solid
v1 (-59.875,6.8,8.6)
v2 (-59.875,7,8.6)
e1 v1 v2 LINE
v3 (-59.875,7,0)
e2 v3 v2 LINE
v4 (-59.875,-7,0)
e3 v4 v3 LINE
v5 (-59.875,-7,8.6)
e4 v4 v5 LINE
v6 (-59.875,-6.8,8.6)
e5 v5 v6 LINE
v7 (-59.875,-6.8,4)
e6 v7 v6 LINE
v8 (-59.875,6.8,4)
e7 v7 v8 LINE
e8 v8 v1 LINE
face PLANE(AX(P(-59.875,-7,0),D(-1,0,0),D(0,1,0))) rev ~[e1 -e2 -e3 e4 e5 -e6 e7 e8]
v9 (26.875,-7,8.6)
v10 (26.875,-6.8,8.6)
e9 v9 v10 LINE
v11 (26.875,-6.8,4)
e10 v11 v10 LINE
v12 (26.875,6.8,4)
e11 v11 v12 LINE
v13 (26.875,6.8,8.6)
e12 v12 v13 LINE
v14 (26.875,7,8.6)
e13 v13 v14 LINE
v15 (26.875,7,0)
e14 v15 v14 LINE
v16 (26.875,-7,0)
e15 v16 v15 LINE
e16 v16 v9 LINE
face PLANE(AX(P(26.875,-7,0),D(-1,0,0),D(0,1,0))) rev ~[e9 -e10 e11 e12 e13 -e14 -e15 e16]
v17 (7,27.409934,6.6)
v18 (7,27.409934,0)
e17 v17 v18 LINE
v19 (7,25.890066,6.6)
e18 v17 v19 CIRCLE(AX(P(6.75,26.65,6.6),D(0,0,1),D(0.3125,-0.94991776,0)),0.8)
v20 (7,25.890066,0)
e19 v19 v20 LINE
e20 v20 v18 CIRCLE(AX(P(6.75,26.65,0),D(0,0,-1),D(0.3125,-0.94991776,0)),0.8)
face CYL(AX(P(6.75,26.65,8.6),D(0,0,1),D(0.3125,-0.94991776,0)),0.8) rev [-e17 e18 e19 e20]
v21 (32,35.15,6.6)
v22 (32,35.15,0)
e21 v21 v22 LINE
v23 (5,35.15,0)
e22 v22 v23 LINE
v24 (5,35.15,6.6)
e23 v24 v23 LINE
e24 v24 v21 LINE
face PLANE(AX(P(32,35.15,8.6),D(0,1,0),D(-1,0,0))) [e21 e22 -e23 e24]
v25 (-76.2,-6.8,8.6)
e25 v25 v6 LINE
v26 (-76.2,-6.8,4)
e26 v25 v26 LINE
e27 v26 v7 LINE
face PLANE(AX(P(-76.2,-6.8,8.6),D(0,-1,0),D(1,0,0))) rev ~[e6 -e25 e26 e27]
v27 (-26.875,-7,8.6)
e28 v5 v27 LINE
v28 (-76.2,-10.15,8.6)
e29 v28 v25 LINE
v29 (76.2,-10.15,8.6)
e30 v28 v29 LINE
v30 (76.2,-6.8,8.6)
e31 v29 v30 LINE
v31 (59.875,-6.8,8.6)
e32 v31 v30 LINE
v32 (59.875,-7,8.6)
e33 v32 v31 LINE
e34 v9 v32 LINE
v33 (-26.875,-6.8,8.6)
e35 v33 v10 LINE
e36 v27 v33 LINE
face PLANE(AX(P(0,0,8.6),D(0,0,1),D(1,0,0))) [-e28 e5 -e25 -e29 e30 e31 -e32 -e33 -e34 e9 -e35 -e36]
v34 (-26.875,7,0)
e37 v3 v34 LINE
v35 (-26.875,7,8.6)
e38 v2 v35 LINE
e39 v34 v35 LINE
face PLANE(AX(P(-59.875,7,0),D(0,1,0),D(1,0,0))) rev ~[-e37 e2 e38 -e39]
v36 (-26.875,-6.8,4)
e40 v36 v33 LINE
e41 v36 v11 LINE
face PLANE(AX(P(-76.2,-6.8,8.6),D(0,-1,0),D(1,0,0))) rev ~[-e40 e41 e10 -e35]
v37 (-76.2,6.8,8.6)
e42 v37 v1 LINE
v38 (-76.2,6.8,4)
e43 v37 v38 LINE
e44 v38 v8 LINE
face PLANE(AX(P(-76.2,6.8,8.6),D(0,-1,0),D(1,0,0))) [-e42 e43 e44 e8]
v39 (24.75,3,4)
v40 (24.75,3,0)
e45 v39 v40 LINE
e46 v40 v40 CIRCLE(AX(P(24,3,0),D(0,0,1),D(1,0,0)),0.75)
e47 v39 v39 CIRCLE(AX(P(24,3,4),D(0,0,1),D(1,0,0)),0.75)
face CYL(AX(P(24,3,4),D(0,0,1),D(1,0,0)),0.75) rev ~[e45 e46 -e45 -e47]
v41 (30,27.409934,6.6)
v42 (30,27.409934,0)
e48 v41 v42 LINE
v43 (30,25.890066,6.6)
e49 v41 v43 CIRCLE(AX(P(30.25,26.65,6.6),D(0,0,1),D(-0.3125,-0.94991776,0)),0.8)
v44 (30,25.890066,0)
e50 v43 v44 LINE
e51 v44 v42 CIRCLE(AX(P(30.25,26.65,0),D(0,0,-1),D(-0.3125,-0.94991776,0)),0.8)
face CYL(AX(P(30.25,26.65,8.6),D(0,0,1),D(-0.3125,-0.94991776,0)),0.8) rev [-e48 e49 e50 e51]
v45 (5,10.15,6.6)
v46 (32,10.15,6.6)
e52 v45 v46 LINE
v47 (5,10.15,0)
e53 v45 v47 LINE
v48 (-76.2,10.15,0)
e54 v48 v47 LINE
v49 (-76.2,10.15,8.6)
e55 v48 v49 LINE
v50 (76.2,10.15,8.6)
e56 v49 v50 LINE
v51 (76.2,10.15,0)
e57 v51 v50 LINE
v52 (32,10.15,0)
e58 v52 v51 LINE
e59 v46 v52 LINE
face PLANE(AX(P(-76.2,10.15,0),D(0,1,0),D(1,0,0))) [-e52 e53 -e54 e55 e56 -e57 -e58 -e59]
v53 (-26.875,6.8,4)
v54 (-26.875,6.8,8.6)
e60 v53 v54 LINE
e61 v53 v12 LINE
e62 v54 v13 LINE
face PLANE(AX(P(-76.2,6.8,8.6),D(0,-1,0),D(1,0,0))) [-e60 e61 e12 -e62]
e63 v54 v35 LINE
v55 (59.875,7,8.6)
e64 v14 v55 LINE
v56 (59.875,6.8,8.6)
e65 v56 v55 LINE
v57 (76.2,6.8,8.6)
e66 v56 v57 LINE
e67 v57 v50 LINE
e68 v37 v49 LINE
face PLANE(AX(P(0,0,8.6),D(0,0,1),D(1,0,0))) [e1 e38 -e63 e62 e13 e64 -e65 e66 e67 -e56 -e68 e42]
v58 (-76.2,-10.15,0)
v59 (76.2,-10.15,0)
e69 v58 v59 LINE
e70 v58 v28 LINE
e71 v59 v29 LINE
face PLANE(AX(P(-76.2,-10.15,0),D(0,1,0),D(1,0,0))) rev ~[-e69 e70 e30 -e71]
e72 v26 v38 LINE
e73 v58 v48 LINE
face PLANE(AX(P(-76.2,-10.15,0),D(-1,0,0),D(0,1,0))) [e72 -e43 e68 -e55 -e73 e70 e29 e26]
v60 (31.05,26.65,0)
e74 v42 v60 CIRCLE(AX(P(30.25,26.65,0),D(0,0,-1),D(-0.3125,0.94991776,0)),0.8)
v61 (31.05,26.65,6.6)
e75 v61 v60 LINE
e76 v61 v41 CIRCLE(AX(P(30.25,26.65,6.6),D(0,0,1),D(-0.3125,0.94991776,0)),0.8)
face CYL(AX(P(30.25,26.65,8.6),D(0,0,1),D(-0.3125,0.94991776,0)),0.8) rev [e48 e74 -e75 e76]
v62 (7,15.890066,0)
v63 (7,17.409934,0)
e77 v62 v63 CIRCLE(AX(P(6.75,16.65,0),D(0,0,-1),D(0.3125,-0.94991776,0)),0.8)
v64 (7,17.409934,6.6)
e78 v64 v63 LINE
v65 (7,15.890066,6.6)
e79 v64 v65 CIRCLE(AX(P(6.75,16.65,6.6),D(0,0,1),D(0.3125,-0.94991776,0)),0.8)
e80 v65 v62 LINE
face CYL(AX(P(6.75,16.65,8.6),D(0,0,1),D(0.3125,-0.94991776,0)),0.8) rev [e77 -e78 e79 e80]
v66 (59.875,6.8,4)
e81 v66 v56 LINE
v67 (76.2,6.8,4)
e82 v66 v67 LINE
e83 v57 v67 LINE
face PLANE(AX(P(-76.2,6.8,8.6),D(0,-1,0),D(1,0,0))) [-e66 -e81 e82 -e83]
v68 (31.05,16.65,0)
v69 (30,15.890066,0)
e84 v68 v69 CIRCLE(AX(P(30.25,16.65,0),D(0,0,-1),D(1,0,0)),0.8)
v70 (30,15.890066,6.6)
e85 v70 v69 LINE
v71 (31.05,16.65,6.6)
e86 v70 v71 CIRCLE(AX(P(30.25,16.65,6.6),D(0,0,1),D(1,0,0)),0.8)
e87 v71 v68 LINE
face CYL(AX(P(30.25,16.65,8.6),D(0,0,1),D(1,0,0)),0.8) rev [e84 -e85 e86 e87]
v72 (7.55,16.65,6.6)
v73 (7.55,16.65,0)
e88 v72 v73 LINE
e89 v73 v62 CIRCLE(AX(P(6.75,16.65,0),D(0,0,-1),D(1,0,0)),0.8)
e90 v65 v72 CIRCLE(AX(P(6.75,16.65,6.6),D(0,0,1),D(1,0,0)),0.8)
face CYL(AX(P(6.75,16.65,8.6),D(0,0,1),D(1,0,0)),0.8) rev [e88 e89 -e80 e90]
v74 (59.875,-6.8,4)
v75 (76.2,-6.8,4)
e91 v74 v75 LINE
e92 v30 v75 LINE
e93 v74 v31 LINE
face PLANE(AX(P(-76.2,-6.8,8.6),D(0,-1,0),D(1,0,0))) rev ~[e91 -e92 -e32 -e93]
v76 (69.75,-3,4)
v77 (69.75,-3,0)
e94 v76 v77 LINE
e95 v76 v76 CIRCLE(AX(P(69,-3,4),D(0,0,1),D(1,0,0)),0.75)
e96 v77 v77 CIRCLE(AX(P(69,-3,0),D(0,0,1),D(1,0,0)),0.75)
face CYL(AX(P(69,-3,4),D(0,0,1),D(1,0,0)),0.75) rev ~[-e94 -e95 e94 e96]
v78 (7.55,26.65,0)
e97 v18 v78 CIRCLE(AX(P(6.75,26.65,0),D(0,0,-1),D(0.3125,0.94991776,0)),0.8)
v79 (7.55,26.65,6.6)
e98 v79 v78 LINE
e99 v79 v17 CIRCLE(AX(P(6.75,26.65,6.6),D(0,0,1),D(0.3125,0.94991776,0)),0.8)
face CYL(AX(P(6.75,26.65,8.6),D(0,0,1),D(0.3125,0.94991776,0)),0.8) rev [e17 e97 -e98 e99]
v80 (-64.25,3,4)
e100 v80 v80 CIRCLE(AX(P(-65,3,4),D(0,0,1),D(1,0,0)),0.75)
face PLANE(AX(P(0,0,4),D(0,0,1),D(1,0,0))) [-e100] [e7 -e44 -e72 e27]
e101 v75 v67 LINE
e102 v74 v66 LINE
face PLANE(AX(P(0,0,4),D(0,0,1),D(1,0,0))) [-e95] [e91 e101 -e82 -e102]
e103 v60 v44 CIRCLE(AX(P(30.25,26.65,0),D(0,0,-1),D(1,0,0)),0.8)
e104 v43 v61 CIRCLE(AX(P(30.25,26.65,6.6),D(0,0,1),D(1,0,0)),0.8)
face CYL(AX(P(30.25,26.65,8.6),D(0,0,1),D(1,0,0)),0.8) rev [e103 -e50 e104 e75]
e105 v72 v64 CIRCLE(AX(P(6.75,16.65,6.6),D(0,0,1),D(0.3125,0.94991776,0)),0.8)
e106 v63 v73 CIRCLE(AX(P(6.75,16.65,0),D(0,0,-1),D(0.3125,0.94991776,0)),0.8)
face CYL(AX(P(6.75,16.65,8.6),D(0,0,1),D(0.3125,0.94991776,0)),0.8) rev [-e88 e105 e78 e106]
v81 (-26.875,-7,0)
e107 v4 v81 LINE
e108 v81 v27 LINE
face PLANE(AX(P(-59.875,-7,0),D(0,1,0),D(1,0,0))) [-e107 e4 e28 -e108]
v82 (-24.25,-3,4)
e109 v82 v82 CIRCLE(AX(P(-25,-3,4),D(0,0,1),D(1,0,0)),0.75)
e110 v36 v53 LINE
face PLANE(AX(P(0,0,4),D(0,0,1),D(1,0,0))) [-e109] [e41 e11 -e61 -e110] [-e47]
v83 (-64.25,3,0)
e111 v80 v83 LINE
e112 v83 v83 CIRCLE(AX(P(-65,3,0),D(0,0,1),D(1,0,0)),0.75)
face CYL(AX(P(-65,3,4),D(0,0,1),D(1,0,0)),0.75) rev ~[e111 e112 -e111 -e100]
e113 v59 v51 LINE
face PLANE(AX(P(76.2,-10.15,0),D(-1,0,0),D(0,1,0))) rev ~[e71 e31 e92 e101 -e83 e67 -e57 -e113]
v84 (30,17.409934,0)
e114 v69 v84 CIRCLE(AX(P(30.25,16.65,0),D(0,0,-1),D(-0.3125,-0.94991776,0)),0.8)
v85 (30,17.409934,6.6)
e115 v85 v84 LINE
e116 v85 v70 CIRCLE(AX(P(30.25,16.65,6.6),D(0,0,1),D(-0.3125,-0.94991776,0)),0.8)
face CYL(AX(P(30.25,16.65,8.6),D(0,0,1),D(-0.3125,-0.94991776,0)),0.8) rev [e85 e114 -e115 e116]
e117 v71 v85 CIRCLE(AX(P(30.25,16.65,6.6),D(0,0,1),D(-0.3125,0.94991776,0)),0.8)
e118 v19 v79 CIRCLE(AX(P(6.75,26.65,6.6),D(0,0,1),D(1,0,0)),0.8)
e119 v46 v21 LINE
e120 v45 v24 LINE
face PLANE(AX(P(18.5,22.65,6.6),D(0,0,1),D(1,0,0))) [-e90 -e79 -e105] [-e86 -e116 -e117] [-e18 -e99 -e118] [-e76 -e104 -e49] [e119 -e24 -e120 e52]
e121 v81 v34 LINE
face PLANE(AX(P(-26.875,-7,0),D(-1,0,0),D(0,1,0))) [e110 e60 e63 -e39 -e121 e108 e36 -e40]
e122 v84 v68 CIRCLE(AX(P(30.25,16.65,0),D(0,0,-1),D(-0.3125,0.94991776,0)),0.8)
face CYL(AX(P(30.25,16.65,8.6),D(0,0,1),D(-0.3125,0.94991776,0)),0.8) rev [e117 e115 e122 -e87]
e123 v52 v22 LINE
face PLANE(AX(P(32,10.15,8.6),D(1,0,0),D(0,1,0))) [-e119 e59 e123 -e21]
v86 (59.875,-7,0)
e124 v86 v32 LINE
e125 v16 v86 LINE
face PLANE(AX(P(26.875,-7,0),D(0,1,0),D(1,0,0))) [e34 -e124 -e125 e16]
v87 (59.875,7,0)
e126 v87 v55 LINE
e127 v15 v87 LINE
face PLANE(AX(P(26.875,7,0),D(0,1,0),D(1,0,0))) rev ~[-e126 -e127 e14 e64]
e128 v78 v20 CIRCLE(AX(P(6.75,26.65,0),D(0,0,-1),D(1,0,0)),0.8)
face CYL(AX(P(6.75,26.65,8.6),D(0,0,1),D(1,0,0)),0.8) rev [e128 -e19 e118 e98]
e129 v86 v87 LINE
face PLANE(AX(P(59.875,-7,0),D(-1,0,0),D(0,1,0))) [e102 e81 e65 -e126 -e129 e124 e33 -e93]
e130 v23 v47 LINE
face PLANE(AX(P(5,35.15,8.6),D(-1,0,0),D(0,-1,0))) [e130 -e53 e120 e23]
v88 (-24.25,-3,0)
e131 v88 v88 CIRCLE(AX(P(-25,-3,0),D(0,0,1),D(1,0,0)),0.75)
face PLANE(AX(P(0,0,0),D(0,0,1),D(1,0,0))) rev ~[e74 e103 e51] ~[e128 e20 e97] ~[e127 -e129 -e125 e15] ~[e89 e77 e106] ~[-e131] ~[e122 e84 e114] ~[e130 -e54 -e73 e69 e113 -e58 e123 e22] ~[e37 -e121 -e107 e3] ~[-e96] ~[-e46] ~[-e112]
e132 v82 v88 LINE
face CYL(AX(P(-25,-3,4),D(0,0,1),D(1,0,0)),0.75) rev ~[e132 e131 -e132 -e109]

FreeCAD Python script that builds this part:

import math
import FreeCAD as App
import Part
import Sketcher

doc = App.newDocument("Part")
body = doc.addObject("PartDesign::Body", "Body")

sketch1 = body.newObject("Sketcher::SketchObject", "Sketch")
sketch1.AttachmentSupport = (doc.getObject("XY_Plane"), [""])
sketch1.MapMode = "FlatFace"
sketch1.addGeometry([
    Part.LineSegment(App.Vector(-76, 10, 0), App.Vector(-76, -10, 0)),
    Part.LineSegment(App.Vector(-76, -10, 0), App.Vector(76, -10, 0)),
    Part.LineSegment(App.Vector(76, -10, 0), App.Vector(76, 10, 0)),
    Part.LineSegment(App.Vector(76, 10, 0), App.Vector(-76, 10, 0)),
    Part.LineSegment(App.Vector(-27, -7, 0), App.Vector(-60, -7, 0)),
    Part.LineSegment(App.Vector(-60, -7, 0), App.Vector(-60, 7, 0)),
    Part.LineSegment(App.Vector(-60, 7, 0), App.Vector(-27, 7, 0)),
    Part.LineSegment(App.Vector(-27, 7, 0), App.Vector(-27, -7, 0)),
    Part.LineSegment(App.Vector(60, -7, 0), App.Vector(27, -7, 0)),
    Part.LineSegment(App.Vector(27, -7, 0), App.Vector(27, 7, 0)),
    Part.LineSegment(App.Vector(27, 7, 0), App.Vector(60, 7, 0)),
    Part.LineSegment(App.Vector(60, 7, 0), App.Vector(60, -7, 0)),
], False)
sketch1.addConstraint([
    Sketcher.Constraint("Coincident", 0, 2, 1, 1),
    Sketcher.Constraint("Coincident", 1, 2, 2, 1),
    Sketcher.Constraint("Coincident", 2, 2, 3, 1),
    Sketcher.Constraint("Coincident", 3, 2, 0, 1),
    Sketcher.Constraint("Coincident", 4, 2, 5, 1),
    Sketcher.Constraint("Coincident", 5, 2, 6, 1),
    Sketcher.Constraint("Coincident", 6, 2, 7, 1),
    Sketcher.Constraint("Coincident", 7, 2, 4, 1),
    Sketcher.Constraint("Coincident", 8, 2, 9, 1),
    Sketcher.Constraint("Coincident", 9, 2, 10, 1),
    Sketcher.Constraint("Coincident", 10, 2, 11, 1),
    Sketcher.Constraint("Coincident", 11, 2, 8, 1),
    Sketcher.Constraint("Vertical", 0),
    Sketcher.Constraint("Horizontal", 1),
    Sketcher.Constraint("Vertical", 2),
    Sketcher.Constraint("Horizontal", 3),
    Sketcher.Constraint("Horizontal", 4),
    Sketcher.Constraint("Vertical", 5),
    Sketcher.Constraint("Horizontal", 6),
    Sketcher.Constraint("Vertical", 7),
    Sketcher.Constraint("Horizontal", 8),
    Sketcher.Constraint("Vertical", 9),
    Sketcher.Constraint("Horizontal", 10),
    Sketcher.Constraint("Vertical", 11),
    Sketcher.Constraint("Symmetric", 0, 2, 2, 2, -1, 1),
    Sketcher.Constraint("Symmetric", 6, 2, 8, 2, -1, 1),
    Sketcher.Constraint("Symmetric", 4, 2, 10, 2, -1, 1),
    Sketcher.Constraint("Horizontal", 7, 2, 8, 2),
    Sketcher.Constraint("DistanceX", 4, 2, 4, 1, 33.0),
    Sketcher.Constraint("DistanceY", 5, 1, 5, 2, 14.0),
    Sketcher.Constraint("DistanceX", 1, 1, 1, 2, 152.4),
    Sketcher.Constraint("DistanceY", 0, 2, 0, 1, 20.3),
    Sketcher.Constraint("DistanceX", 7, 2, 8, 2, 53.75),
])
pad1 = body.newObject("PartDesign::Pad", "Pad")
pad1.Profile = sketch1
pad1.Length = 8.6

sketch2 = body.newObject("Sketcher::SketchObject", "Sketch001")
sketch2.AttachmentSupport = (doc.getObject("XY_Plane"), [""])
sketch2.MapMode = "FlatFace"
sketch2.AttachmentOffset = App.Placement(App.Vector(0, 0, 8.6), App.Rotation())
sketch2.addGeometry([
    Part.LineSegment(App.Vector(-76, 7, 0), App.Vector(-76, -7, 0)),
    Part.LineSegment(App.Vector(-76, -7, 0), App.Vector(76, -7, 0)),
    Part.LineSegment(App.Vector(76, -7, 0), App.Vector(76, 7, 0)),
    Part.LineSegment(App.Vector(76, 7, 0), App.Vector(-76, 7, 0)),
], False)
sketch2.addConstraint([
    Sketcher.Constraint("Coincident", 0, 2, 1, 1),
    Sketcher.Constraint("Coincident", 1, 2, 2, 1),
    Sketcher.Constraint("Coincident", 2, 2, 3, 1),
    Sketcher.Constraint("Coincident", 3, 2, 0, 1),
    Sketcher.Constraint("Vertical", 0),
    Sketcher.Constraint("Horizontal", 1),
    Sketcher.Constraint("Vertical", 2),
    Sketcher.Constraint("Horizontal", 3),
    Sketcher.Constraint("Symmetric", 0, 2, 2, 2, -1, 1),
    Sketcher.Constraint("DistanceX", 1, 1, 1, 2, 152.4),
    Sketcher.Constraint("DistanceY", 0, 2, 0, 1, 13.6),
])
pocket1 = body.newObject("PartDesign::Pocket", "Pocket")
pocket1.Profile = sketch2
pocket1.Length = 4.6

sketch3 = body.newObject("Sketcher::SketchObject", "Sketch002")
sketch3.AttachmentSupport = (doc.getObject("XY_Plane"), [""])
sketch3.MapMode = "FlatFace"
sketch3.AttachmentOffset = App.Placement(App.Vector(0, 0, 8.6), App.Rotation())
sketch3.addGeometry([
    Part.LineSegment(App.Vector(32, 10.2, 0), App.Vector(32, 35.1, 0)),
    Part.LineSegment(App.Vector(32, 35.1, 0), App.Vector(5, 35.1, 0)),
    Part.LineSegment(App.Vector(5, 35.1, 0), App.Vector(5, 10.2, 0)),
    Part.LineSegment(App.Vector(5, 10.2, 0), App.Vector(32, 10.2, 0)),
    Part.ArcOfCircle(Part.Circle(App.Vector(30.2, 16.6, 0), App.Vector(0, 0, 1), 0.8), math.radians(108), math.radians(252)),
    Part.ArcOfCircle(Part.Circle(App.Vector(30.2, 16.6, 0), App.Vector(0, 0, 1), 0.8), math.radians(0), math.radians(108)),
    Part.ArcOfCircle(Part.Circle(App.Vector(30.2, 16.6, 0), App.Vector(0, 0, 1), 0.8), math.radians(-108), math.radians(0)),
    Part.ArcOfCircle(Part.Circle(App.Vector(30.2, 26.6, 0), App.Vector(0, 0, 1), 0.8), math.radians(108), math.radians(252)),
    Part.ArcOfCircle(Part.Circle(App.Vector(30.2, 26.6, 0), App.Vector(0, 0, 1), 0.8), math.radians(0), math.radians(108)),
    Part.ArcOfCircle(Part.Circle(App.Vector(30.2, 26.6, 0), App.Vector(0, 0, 1), 0.8), math.radians(-108), math.radians(0)),
    Part.ArcOfCircle(Part.Circle(App.Vector(6.8, 26.6, 0), App.Vector(0, 0, 1), 0.8), math.radians(0), math.radians(72)),
    Part.ArcOfCircle(Part.Circle(App.Vector(6.8, 26.6, 0), App.Vector(0, 0, 1), 0.8), math.radians(-72), math.radians(0)),
    Part.ArcOfCircle(Part.Circle(App.Vector(6.8, 26.6, 0), App.Vector(0, 0, 1), 0.8), math.radians(72), math.radians(288)),
    Part.ArcOfCircle(Part.Circle(App.Vector(6.8, 16.6, 0), App.Vector(0, 0, 1), 0.8), math.radians(0), math.radians(72)),
    Part.ArcOfCircle(Part.Circle(App.Vector(6.8, 16.6, 0), App.Vector(0, 0, 1), 0.8), math.radians(-72), math.radians(0)),
    Part.ArcOfCircle(Part.Circle(App.Vector(6.8, 16.6, 0), App.Vector(0, 0, 1), 0.8), math.radians(72), math.radians(288)),
], False)
sketch3.addConstraint([
    Sketcher.Constraint("Coincident", 0, 2, 1, 1),
    Sketcher.Constraint("Coincident", 1, 2, 2, 1),
    Sketcher.Constraint("Coincident", 2, 2, 3, 1),
    Sketcher.Constraint("Coincident", 3, 2, 0, 1),
    Sketcher.Constraint("Tangent", 4, 1, 5, 2),
    Sketcher.Constraint("Tangent", 5, 1, 6, 2),
    Sketcher.Constraint("Tangent", 6, 1, 4, 2),
    Sketcher.Constraint("Tangent", 7, 1, 8, 2),
    Sketcher.Constraint("Tangent", 8, 1, 9, 2),
    Sketcher.Constraint("Tangent", 9, 1, 7, 2),
    Sketcher.Constraint("Tangent", 10, 1, 11, 2),
    Sketcher.Constraint("Tangent", 11, 1, 12, 2),
    Sketcher.Constraint("Tangent", 12, 1, 10, 2),
    Sketcher.Constraint("Tangent", 13, 1, 14, 2),
    Sketcher.Constraint("Tangent", 14, 1, 15, 2),
    Sketcher.Constraint("Tangent", 15, 1, 13, 2),
    Sketcher.Constraint("Vertical", 0),
    Sketcher.Constraint("Horizontal", 1),
    Sketcher.Constraint("Vertical", 2),
    Sketcher.Constraint("Horizontal", 3),
    Sketcher.Constraint("Equal", 6, 7),
    Sketcher.Constraint("Equal", 9, 10),
    Sketcher.Constraint("Equal", 12, 13),
    Sketcher.Constraint("Horizontal", 9, 3, 10, 3),
    Sketcher.Constraint("Horizontal", 6, 3, 13, 3),
    Sketcher.Constraint("Horizontal", 15, 3, 5, 1),
    Sketcher.Constraint("Horizontal", 12, 3, 8, 1),
    Sketcher.Constraint("Horizontal", 8, 1, 10, 1),
    Sketcher.Constraint("Horizontal", 9, 1, 11, 1),
    Sketcher.Constraint("Horizontal", 7, 1, 12, 1),
    Sketcher.Constraint("Horizontal", 5, 1, 13, 1),
    Sketcher.Constraint("Horizontal", 6, 1, 14, 1),
    Sketcher.Constraint("Horizontal", 4, 1, 15, 1),
    Sketcher.Constraint("Vertical", 6, 3, 7, 3),
    Sketcher.Constraint("Vertical", 12, 3, 13, 3),
    Sketcher.Constraint("Vertical", 4, 1, 6, 1),
    Sketcher.Constraint("Vertical", 6, 1, 7, 1),
    Sketcher.Constraint("Vertical", 7, 1, 9, 1),
    Sketcher.Constraint("Radius", 4, 0.8),
    Sketcher.Constraint("DistanceX", 1, 2, 1, 1, 27.0),
    Sketcher.Constraint("DistanceY", 0, 1, 0, 2, 25.0),
    Sketcher.Constraint("DistanceX", -1, 1, 0, 2, 32.0),
    Sketcher.Constraint("DistanceX", -1, 1, 4, 1, 30.0),
    Sketcher.Constraint("DistanceX", -1, 1, 11, 1, 7.0),
    Sketcher.Constraint("DistanceY", 4, 3, 7, 3, 10.0),
    Sketcher.Constraint("DistanceX", 10, 3, 7, 3, 23.5),
    Sketcher.Constraint("DistanceY", 7, 3, 0, 2, 8.5),
    Sketcher.Constraint("DistanceY", -1, 1, 4, 3, 16.65),
])
pad2 = body.newObject("PartDesign::Pad", "Pad001")
pad2.Profile = sketch3
pad2.Length = 8.6
pad2.Reversed = True

sketch4 = body.newObject("Sketcher::SketchObject", "Sketch003")
sketch4.AttachmentSupport = (doc.getObject("XY_Plane"), [""])
sketch4.MapMode = "FlatFace"
sketch4.AttachmentOffset = App.Placement(App.Vector(0, 0, 8.6), App.Rotation())
sketch4.addGeometry([
    Part.LineSegment(App.Vector(5, 35, 0), App.Vector(5, 10, 0)),
    Part.LineSegment(App.Vector(5, 10, 0), App.Vector(32, 10, 0)),
    Part.LineSegment(App.Vector(32, 10, 0), App.Vector(32, 35, 0)),
    Part.LineSegment(App.Vector(32, 35, 0), App.Vector(5, 35, 0)),
], False)
sketch4.addConstraint([
    Sketcher.Constraint("Coincident", 0, 2, 1, 1),
    Sketcher.Constraint("Coincident", 1, 2, 2, 1),
    Sketcher.Constraint("Coincident", 2, 2, 3, 1),
    Sketcher.Constraint("Coincident", 3, 2, 0, 1),
    Sketcher.Constraint("Vertical", 0),
    Sketcher.Constraint("Horizontal", 1),
    Sketcher.Constraint("Vertical", 2),
    Sketcher.Constraint("Horizontal", 3),
    Sketcher.Constraint("DistanceX", 1, 1, 1, 2, 27.0),
    Sketcher.Constraint("DistanceY", 0, 2, 0, 1, 25.0),
    Sketcher.Constraint("DistanceX", -1, 1, 0, 2, 5.0),
    Sketcher.Constraint("DistanceY", -1, 1, 0, 2, 10.15),
])
pocket2 = body.newObject("PartDesign::Pocket", "Pocket001")
pocket2.Profile = sketch4
pocket2.Length = 2

sketch5 = body.newObject("Sketcher::SketchObject", "Sketch004")
sketch5.AttachmentSupport = (doc.getObject("XY_Plane"), [""])
sketch5.MapMode = "FlatFace"
sketch5.AttachmentOffset = App.Placement(App.Vector(0, 0, 4), App.Rotation())
sketch5.addGeometry([
    Part.Circle(App.Vector(24, 3, 0), App.Vector(0, 0, 1), 0.8),
    Part.Circle(App.Vector(-25, -3, 0), App.Vector(0, 0, 1), 0.8),
    Part.Circle(App.Vector(-65, 3, 0), App.Vector(0, 0, 1), 0.8),
    Part.Circle(App.Vector(69, -3, 0), App.Vector(0, 0, 1), 0.8),
], False)
sketch5.addConstraint([
    Sketcher.Constraint("Equal", 0, 1),
    Sketcher.Constraint("Equal", 1, 2),
    Sketcher.Constraint("Equal", 2, 3),
    Sketcher.Constraint("Horizontal", 0, 3, 2, 3),
    Sketcher.Constraint("Horizontal", 1, 3, 3, 3),
    Sketcher.Constraint("Diameter", 0, 1.5),
    Sketcher.Constraint("DistanceX", -1, 1, 0, 3, 24.0),
    Sketcher.Constraint("DistanceY", -1, 1, 0, 3, 3.0),
    Sketcher.Constraint("DistanceX", 1, 3, -1, 1, 25.0),
    Sketcher.Constraint("DistanceY", 1, 3, -1, 1, 3.0),
    Sketcher.Constraint("DistanceX", 2, 3, -1, 1, 65.0),
    Sketcher.Constraint("DistanceX", -1, 1, 3, 3, 69.0),
])
pocket3 = body.newObject("PartDesign::Pocket", "Pocket002")
pocket3.Profile = sketch5
pocket3.Type = "ThroughAll"

doc.recompute()
